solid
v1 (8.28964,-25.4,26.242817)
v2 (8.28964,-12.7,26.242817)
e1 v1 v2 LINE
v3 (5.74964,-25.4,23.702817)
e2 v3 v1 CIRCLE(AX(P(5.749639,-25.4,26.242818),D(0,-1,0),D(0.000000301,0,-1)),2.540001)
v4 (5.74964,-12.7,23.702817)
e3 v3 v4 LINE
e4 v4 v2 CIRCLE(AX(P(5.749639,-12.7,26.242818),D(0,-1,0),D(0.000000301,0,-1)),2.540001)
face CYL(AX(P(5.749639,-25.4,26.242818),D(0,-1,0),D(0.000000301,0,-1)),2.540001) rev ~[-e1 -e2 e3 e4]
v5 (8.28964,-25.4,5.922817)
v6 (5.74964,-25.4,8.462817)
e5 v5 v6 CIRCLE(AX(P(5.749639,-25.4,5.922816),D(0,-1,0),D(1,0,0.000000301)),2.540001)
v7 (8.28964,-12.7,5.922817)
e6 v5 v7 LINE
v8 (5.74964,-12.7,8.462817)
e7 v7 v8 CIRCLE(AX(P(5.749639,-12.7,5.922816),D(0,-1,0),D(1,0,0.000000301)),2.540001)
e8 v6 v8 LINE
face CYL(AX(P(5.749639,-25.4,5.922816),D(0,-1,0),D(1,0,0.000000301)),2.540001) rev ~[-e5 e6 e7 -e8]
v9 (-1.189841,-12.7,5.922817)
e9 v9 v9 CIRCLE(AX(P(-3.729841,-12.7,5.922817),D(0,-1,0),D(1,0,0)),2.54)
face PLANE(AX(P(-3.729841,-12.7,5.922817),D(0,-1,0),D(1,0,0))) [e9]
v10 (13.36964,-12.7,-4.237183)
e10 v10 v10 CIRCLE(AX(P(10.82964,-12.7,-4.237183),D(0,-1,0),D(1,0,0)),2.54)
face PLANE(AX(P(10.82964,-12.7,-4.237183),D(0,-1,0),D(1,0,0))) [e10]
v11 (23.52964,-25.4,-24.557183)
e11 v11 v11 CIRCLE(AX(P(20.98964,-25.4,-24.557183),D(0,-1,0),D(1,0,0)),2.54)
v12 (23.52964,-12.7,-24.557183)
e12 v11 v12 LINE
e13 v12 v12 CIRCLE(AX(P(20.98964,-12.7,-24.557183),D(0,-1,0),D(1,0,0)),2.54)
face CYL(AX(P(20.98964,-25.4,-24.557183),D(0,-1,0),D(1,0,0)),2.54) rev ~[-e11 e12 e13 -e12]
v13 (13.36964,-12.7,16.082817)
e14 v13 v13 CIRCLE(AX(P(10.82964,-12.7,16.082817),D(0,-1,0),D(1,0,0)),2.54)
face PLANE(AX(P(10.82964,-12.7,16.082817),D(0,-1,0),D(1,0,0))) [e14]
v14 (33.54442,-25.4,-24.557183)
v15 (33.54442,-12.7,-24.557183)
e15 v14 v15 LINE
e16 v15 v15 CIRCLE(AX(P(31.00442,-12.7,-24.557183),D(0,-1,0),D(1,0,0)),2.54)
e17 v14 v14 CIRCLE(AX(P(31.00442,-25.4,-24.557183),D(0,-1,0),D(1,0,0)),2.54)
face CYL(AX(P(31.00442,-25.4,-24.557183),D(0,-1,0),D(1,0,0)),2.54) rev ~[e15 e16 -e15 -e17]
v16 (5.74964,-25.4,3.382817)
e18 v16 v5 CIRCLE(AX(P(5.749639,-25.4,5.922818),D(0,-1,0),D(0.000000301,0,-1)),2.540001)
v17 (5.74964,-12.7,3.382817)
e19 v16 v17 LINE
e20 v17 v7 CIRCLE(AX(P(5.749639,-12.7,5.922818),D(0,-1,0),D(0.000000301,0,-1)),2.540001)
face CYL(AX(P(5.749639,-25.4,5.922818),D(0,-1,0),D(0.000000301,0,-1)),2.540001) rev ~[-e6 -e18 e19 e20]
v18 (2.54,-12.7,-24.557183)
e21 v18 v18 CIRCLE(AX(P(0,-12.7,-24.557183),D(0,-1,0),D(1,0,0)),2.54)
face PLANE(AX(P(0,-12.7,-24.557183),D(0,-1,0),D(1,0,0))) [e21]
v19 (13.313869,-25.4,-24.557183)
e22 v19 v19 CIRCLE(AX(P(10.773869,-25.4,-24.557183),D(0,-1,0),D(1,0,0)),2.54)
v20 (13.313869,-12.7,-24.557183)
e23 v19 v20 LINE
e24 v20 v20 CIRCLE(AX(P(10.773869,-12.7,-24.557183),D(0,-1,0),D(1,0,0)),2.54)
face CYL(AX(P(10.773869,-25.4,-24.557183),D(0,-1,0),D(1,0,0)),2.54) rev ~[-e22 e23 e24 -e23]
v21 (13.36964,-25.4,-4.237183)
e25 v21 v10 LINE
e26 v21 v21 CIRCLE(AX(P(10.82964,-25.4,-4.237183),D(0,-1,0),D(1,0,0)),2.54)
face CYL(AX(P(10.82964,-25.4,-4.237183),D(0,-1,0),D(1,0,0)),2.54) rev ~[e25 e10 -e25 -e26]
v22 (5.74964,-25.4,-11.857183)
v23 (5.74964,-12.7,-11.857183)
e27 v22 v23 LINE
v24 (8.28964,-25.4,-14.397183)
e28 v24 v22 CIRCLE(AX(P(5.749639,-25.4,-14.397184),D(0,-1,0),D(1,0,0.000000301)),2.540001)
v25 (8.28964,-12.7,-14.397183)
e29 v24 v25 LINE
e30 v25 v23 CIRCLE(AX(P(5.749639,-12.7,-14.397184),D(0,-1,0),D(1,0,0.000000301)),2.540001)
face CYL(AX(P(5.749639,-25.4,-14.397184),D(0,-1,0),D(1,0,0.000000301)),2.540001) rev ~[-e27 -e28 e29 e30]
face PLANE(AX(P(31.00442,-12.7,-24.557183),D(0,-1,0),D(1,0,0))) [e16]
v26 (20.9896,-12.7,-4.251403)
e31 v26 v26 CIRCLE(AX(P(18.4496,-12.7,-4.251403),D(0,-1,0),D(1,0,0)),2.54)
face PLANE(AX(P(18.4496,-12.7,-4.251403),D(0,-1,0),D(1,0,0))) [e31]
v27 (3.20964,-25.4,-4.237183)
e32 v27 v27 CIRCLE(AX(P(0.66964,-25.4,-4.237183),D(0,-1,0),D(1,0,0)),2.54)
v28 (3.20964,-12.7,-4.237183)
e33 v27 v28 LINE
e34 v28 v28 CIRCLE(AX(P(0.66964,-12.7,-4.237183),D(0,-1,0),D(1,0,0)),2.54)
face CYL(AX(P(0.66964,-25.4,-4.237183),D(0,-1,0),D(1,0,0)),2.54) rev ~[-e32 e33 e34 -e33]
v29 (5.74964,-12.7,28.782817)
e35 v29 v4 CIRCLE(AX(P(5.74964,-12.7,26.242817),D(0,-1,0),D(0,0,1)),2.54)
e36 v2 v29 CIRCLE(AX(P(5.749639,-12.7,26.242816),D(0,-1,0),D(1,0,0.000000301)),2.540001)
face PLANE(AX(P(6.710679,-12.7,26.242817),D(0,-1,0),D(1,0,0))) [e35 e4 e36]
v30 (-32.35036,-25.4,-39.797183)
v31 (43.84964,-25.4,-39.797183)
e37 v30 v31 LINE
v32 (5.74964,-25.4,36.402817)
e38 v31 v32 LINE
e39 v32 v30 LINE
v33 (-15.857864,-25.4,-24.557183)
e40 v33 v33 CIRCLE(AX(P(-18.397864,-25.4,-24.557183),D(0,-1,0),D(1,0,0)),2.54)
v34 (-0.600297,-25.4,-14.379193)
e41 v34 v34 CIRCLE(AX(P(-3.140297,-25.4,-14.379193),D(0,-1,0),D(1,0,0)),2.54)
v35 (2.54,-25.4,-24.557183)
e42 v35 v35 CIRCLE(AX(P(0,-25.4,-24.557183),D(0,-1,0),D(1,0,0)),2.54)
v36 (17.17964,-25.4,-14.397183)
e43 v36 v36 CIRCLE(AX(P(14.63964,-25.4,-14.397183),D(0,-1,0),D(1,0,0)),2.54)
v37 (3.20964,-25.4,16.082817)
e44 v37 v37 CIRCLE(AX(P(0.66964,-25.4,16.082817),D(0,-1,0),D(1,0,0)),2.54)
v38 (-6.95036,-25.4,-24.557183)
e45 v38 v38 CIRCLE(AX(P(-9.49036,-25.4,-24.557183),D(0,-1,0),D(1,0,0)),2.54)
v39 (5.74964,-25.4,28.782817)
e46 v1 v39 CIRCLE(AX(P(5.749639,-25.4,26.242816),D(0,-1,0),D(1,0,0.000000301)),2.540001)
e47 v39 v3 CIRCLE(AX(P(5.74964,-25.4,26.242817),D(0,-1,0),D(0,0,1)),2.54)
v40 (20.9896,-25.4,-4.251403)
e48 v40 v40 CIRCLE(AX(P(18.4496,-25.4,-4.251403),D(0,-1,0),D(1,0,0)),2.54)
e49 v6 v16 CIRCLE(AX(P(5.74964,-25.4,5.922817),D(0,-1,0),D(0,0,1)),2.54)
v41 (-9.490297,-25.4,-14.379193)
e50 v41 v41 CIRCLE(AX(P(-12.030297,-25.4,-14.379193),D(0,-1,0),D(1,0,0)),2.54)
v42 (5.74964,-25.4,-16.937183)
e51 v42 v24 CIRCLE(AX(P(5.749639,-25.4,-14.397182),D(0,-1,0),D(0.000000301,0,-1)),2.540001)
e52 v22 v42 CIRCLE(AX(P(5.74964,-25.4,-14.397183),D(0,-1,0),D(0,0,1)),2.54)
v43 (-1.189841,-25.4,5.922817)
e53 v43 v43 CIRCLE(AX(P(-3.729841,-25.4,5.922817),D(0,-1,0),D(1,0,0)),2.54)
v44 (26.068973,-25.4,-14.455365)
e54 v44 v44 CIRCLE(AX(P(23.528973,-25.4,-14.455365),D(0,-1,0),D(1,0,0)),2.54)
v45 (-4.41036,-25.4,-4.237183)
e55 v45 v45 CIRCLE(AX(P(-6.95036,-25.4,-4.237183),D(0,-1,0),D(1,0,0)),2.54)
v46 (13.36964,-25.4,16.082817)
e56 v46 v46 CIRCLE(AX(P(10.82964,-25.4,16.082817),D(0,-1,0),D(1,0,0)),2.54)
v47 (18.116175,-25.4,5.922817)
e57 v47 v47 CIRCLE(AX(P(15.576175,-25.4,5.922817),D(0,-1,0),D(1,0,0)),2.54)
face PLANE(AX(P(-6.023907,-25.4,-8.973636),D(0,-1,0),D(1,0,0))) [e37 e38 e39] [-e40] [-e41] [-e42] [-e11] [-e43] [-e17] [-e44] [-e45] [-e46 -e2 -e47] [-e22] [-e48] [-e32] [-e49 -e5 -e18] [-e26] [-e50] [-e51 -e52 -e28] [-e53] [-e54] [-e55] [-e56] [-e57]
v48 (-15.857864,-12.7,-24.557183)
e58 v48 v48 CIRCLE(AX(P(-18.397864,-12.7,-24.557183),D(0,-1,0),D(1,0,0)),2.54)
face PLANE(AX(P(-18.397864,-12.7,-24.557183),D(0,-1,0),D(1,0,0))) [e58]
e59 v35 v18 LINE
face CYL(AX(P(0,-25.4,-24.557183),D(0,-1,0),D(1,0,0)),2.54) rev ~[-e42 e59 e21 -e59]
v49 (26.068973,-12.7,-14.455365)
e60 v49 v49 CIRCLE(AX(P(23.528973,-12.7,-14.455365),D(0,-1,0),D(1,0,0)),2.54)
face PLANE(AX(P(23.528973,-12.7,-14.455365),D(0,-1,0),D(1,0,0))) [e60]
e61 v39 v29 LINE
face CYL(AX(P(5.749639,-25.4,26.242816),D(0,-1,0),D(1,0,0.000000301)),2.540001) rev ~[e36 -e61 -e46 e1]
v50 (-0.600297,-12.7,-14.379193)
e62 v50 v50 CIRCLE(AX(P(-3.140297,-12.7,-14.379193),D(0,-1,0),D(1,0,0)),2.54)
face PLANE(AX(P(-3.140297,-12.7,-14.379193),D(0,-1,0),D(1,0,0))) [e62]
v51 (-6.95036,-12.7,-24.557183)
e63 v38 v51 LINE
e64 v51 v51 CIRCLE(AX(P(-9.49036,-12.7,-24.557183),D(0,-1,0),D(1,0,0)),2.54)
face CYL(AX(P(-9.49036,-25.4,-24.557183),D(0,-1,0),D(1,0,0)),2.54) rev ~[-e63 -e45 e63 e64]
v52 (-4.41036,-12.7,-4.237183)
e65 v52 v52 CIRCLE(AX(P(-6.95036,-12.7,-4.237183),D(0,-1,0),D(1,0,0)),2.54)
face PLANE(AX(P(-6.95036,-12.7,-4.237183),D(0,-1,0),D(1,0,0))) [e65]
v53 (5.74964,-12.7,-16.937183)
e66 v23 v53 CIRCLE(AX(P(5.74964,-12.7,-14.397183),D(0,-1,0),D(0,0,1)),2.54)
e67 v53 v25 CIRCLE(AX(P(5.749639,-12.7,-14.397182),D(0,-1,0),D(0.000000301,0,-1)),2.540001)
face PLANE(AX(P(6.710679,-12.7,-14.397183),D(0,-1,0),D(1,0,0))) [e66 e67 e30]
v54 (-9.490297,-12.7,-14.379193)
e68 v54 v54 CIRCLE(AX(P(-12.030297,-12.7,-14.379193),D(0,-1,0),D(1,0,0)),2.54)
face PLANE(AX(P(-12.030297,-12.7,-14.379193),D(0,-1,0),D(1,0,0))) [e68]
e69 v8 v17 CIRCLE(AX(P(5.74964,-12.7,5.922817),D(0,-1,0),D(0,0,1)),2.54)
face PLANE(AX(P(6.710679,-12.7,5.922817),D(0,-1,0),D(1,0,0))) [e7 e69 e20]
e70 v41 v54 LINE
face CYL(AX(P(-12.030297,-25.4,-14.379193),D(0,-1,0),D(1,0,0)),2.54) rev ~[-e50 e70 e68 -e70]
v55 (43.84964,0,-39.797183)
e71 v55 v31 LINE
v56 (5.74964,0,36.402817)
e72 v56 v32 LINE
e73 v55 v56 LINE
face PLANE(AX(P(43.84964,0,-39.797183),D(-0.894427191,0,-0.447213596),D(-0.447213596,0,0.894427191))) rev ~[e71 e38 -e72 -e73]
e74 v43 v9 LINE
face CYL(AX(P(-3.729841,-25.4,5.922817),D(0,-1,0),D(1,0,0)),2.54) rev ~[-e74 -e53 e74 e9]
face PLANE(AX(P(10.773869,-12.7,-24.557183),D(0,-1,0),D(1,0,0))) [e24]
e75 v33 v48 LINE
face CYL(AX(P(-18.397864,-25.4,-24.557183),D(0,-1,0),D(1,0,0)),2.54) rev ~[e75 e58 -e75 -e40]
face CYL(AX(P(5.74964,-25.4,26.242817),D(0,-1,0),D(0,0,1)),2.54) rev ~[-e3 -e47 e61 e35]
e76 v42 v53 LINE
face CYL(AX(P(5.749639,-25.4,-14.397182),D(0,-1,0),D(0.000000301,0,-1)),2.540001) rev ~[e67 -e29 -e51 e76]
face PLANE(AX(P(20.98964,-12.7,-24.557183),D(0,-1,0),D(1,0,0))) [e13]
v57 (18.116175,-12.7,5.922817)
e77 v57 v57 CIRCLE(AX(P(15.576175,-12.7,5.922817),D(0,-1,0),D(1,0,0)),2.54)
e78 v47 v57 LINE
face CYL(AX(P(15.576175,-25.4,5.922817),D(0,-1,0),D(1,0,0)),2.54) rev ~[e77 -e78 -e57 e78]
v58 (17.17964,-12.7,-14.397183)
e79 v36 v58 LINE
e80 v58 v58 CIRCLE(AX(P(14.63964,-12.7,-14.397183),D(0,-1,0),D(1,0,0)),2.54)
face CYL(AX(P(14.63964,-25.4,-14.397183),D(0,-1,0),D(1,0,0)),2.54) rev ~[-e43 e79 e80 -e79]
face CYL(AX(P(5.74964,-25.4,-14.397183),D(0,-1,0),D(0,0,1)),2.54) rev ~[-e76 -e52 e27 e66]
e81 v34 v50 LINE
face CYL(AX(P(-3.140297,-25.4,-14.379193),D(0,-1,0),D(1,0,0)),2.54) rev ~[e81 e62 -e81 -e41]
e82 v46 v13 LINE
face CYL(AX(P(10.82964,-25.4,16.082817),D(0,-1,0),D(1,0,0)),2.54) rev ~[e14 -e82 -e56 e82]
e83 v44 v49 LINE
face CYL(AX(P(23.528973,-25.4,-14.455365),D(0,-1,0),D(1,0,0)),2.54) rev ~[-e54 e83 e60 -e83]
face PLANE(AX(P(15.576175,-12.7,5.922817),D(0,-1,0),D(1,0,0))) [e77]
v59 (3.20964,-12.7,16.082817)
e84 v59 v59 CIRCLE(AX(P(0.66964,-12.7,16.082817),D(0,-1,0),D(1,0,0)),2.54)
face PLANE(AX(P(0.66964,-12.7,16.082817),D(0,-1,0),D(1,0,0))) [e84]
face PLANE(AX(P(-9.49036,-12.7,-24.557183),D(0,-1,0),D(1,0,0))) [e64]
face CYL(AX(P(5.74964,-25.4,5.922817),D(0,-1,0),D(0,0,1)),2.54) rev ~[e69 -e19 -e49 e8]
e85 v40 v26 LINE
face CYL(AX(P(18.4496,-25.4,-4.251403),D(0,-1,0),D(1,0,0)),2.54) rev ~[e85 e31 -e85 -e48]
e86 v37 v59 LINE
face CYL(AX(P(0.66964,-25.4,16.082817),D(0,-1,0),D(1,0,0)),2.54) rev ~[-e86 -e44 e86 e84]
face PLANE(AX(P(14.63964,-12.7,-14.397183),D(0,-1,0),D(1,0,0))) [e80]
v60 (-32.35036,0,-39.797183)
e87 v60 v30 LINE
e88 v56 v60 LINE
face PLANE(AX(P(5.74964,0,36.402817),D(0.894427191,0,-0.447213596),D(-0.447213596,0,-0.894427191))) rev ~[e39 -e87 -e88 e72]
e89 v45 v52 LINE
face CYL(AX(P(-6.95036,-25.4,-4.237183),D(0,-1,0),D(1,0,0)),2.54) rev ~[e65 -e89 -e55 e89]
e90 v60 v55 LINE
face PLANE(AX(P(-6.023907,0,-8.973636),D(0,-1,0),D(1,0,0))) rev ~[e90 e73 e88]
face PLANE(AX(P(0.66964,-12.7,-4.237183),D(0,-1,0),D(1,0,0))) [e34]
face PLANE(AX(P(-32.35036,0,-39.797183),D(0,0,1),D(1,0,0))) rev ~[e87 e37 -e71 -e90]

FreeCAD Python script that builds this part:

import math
import FreeCAD as App
import Part
import Sketcher

V = App.Vector
Q = App.Units.Quantity


def add_polygon(sketch, points):
    """Adds a closed chain of lines whose ends are joined by coincident constraints."""
    first, n = sketch.GeometryCount, len(points)
    for a, b in zip(points, points[1:] + points[:1]):
        sketch.addGeometry(Part.LineSegment(App.Vector(*a, 0), App.Vector(*b, 0)), False)
    for i in range(n):
        sketch.addConstraint(Sketcher.Constraint("Coincident", first + i, 2, first + (i + 1) % n, 1))

doc = App.newDocument("Part")
body = doc.addObject("PartDesign::Body", "Body")

# Sketch on XZ plane
sketch1 = doc.addObject("Sketcher::SketchObject", "Sketch")
body.addObject(sketch1)
sketch1.AttachmentSupport = (doc.XZ_Plane, [""])
sketch1.MapMode = "FlatFace"
add_polygon(sketch1, [(6, 36), (-32, -40), (44, -40)])  # lines 0-2
sketch1.addConstraint([
    Sketcher.Constraint("Horizontal", 1),
    Sketcher.Constraint("Equal", 0, 2),
    Sketcher.Constraint("DistanceX", 1, 1, 1, 2, Q("3 in")),
    Sketcher.Constraint("DistanceY", 0, 2, 2, 2, Q("3 in")),
    Sketcher.Constraint("DistanceX", 0, 2, -1, 1, 32.35036),
    Sketcher.Constraint("DistanceY", 0, 2, -1, 1, 39.797183),
])
pad1 = doc.addObject("PartDesign::Pad", "Pad")
body.addObject(pad1)
pad1.Profile = sketch1
pad1.Length = Q("1 in")

# Sketch on XZ plane
sketch2 = doc.addObject("Sketcher::SketchObject", "Sketch001")
body.addObject(sketch2)
sketch2.AttachmentSupport = (doc.XZ_Plane, [""])
sketch2.MapMode = "FlatFace"
sketch2.AttachmentOffset = App.Placement(V(0, 0, 1 * 25.4), App.Rotation())
sketch2.addGeometry([
    Part.ArcOfCircle(Part.Circle(V(5.7, 26.2, 0), V(0, 0, 1), 2.5), math.radians(0), math.radians(90)),  # 0
    Part.ArcOfCircle(Part.Circle(V(5.7, 26.2, 0), V(0, 0, 1), 2.5), math.radians(90), math.radians(270)),  # 1
    Part.ArcOfCircle(Part.Circle(V(5.7, 26.2, 0), V(0, 0, 1), 2.5), math.radians(-90), math.radians(0)),  # 2
    Part.ArcOfCircle(Part.Circle(V(5.7, -14.4, 0), V(0, 0, 1), 2.5), math.radians(0), math.radians(90)),  # 3
    Part.ArcOfCircle(Part.Circle(V(5.7, -14.4, 0), V(0, 0, 1), 2.5), math.radians(90), math.radians(270)),  # 4
    Part.ArcOfCircle(Part.Circle(V(5.7, -14.4, 0), V(0, 0, 1), 2.5), math.radians(-90), math.radians(0)),  # 5
    Part.ArcOfCircle(Part.Circle(V(5.7, 5.9, 0), V(0, 0, 1), 2.5), math.radians(0), math.radians(90)),  # 6
    Part.ArcOfCircle(Part.Circle(V(5.7, 5.9, 0), V(0, 0, 1), 2.5), math.radians(90), math.radians(270)),  # 7
    Part.ArcOfCircle(Part.Circle(V(5.7, 5.9, 0), V(0, 0, 1), 2.5), math.radians(-90), math.radians(0)),  # 8
    Part.Circle(V(0.7, 16.1, 0), V(0, 0, 1), 2.5),  # 9
    Part.Circle(V(10.8, 16.1, 0), V(0, 0, 1), 2.5),  # 10
    Part.Circle(V(-3.7, 5.9, 0), V(0, 0, 1), 2.5),  # 11
    Part.Circle(V(15.6, 5.9, 0), V(0, 0, 1), 2.5),  # 12
    Part.Circle(V(0.7, -4.2, 0), V(0, 0, 1), 2.5),  # 13
    Part.Circle(V(-7, -4.2, 0), V(0, 0, 1), 2.5),  # 14
    Part.Circle(V(10.8, -4.2, 0), V(0, 0, 1), 2.5),  # 15
    Part.Circle(V(18.4, -4.3, 0), V(0, 0, 1), 2.5),  # 16
    Part.Circle(V(-3.1, -14.4, 0), V(0, 0, 1), 2.5),  # 17
    Part.Circle(V(-12, -14.4, 0), V(0, 0, 1), 2.5),  # 18
    Part.Circle(V(14.6, -14.4, 0), V(0, 0, 1), 2.5),  # 19
    Part.Circle(V(23.5, -14.5, 0), V(0, 0, 1), 2.5),  # 20
    Part.Circle(V(0, -24.6, 0), V(0, 0, 1), 2.5),  # 21
    Part.Circle(V(-9.5, -24.6, 0), V(0, 0, 1), 2.5),  # 22
    Part.Circle(V(-18.4, -24.6, 0), V(0, 0, 1), 2.5),  # 23
    Part.Circle(V(10.8, -24.6, 0), V(0, 0, 1), 2.5),  # 24
    Part.Circle(V(21, -24.6, 0), V(0, 0, 1), 2.5),  # 25
    Part.Circle(V(31, -24.6, 0), V(0, 0, 1), 2.5),  # 26
], False)
sketch2.addConstraint([
    Sketcher.Constraint("Tangent", 0, 2, 1, 1),
    Sketcher.Constraint("Tangent", 1, 2, 2, 1),
    Sketcher.Constraint("Tangent", 2, 2, 0, 1),
    Sketcher.Constraint("Tangent", 3, 2, 4, 1),
    Sketcher.Constraint("Tangent", 4, 2, 5, 1),
    Sketcher.Constraint("Tangent", 5, 2, 3, 1),
    Sketcher.Constraint("Tangent", 6, 2, 7, 1),
    Sketcher.Constraint("Tangent", 7, 2, 8, 1),
    Sketcher.Constraint("Tangent", 8, 2, 6, 1),
    Sketcher.Constraint("Equal", 2, 3),
    Sketcher.Constraint("Equal", 5, 6),
    Sketcher.Constraint("Equal", 8, 9),
    Sketcher.Constraint("Equal", 9, 10),
    Sketcher.Constraint("Equal", 10, 11),
    Sketcher.Constraint("Equal", 11, 12),
    Sketcher.Constraint("Equal", 12, 13),
    Sketcher.Constraint("Equal", 13, 14),
    Sketcher.Constraint("Equal", 14, 15),
    Sketcher.Constraint("Equal", 15, 16),
    Sketcher.Constraint("Equal", 16, 17),
    Sketcher.Constraint("Equal", 17, 18),
    Sketcher.Constraint("Equal", 18, 19),
    Sketcher.Constraint("Equal", 19, 20),
    Sketcher.Constraint("Equal", 20, 21),
    Sketcher.Constraint("Equal", 21, 22),
    Sketcher.Constraint("Equal", 22, 23),
    Sketcher.Constraint("Equal", 23, 24),
    Sketcher.Constraint("Equal", 24, 25),
    Sketcher.Constraint("Equal", 25, 26),
    Sketcher.Constraint("PointOnObject", 21, 3, -2),
    Sketcher.Constraint("Horizontal", 9, 3, 10, 3),
    Sketcher.Constraint("Horizontal", 8, 3, 11, 3),
    Sketcher.Constraint("Horizontal", 11, 3, 12, 3),
    Sketcher.Constraint("Horizontal", 13, 3, 14, 3),
    Sketcher.Constraint("Horizontal", 14, 3, 15, 3),
    Sketcher.Constraint("Horizontal", 17, 3, 18, 3),
    Sketcher.Constraint("Horizontal", 5, 3, 19, 3),
    Sketcher.Constraint("Horizontal", 21, 3, 22, 3),
    Sketcher.Constraint("Horizontal", 22, 3, 23, 3),
    Sketcher.Constraint("Horizontal", 23, 3, 24, 3),
    Sketcher.Constraint("Horizontal", 24, 3, 25, 3),
    Sketcher.Constraint("Horizontal", 25, 3, 26, 3),
    Sketcher.Constraint("Horizontal", 1, 3, 2, 2),
    Sketcher.Constraint("Horizontal", 19, 3, 5, 2),
    Sketcher.Constraint("Horizontal", 12, 3, 8, 2),
    Sketcher.Constraint("Vertical", 2, 3, 3, 3),
    Sketcher.Constraint("Vertical", 5, 3, 6, 3),
    Sketcher.Constraint("Vertical", 9, 3, 13, 3),
    Sketcher.Constraint("Vertical", 10, 3, 15, 3),
    Sketcher.Constraint("Vertical", 8, 3, 0, 2),
    Sketcher.Constraint("Vertical", 0, 2, 1, 2),
    Sketcher.Constraint("Vertical", 1, 2, 3, 2),
    Sketcher.Constraint("Vertical", 3, 2, 4, 2),
    Sketcher.Constraint("Vertical", 4, 2, 6, 2),
    Sketcher.Constraint("Vertical", 6, 2, 7, 2),
    Sketcher.Constraint("Diameter", 9, Q("0.2 in")),
    Sketcher.Constraint("DistanceY", 3, 3, 0, 3, Q("1.6 in")),
    Sketcher.Constraint("DistanceY", 5, 3, 6, 3, Q("0.7999999 in")),
    Sketcher.Constraint("DistanceX", 9, 3, 8, 3, Q("0.2 in")),
    Sketcher.Constraint("DistanceY", 8, 3, 9, 3, Q("0.4 in")),
    Sketcher.Constraint("DistanceX", 9, 3, 10, 3, Q("0.4 in")),
    Sketcher.Constraint("DistanceY", 13, 3, 11, 3, Q("0.4 in")),
    Sketcher.Constraint("DistanceX", 14, 3, 13, 3, Q("0.3 in")),
    Sketcher.Constraint("DistanceY", 21, 3, 3, 3, Q("0.4 in")),
    Sketcher.Constraint("DistanceX", 22, 3, 3, 3, Q("0.6 in")),
    Sketcher.Constraint("DistanceX", 4, 3, 25, 3, Q("0.6 in")),
    Sketcher.Constraint("DistanceX", 18, 3, 17, 3, Q("0.35 in")),
    Sketcher.Constraint("DistanceX", 4, 3, 19, 3, Q("0.35 in")),
    Sketcher.Constraint("DistanceX", -1, 1, 16, 3, 18.4496),
    Sketcher.Constraint("DistanceX", -1, 1, 0, 3, 5.749639),
    Sketcher.Constraint("DistanceX", 11, 3, -1, 1, 3.729841),
    Sketcher.Constraint("DistanceX", -1, 1, 24, 3, 10.773869),
    Sketcher.Constraint("DistanceX", -1, 1, 26, 3, 31.00442),
    Sketcher.Constraint("DistanceY", 16, 3, 15, 3, 0.01422),
    Sketcher.Constraint("DistanceY", 5, 3, 17, 3, 0.017989),
    Sketcher.Constraint("DistanceY", 20, 3, 3, 3, 0.058181),
    Sketcher.Constraint("DistanceY", -1, 1, 0, 3, 26.242816),
    Sketcher.Constraint("DistanceX", -1, 1, 12, 3, 15.576175),
    Sketcher.Constraint("DistanceX", 17, 3, -1, 1, 3.140297),
    Sketcher.Constraint("DistanceX", -1, 1, 20, 3, 23.528973),
    Sketcher.Constraint("DistanceX", 23, 3, -1, 1, 18.397864),
])
pocket1 = doc.addObject("PartDesign::Pocket", "Pocket")
body.addObject(pocket1)
pocket1.Profile = sketch2
pocket1.Length = Q("0.5 in")

doc.recompute()
